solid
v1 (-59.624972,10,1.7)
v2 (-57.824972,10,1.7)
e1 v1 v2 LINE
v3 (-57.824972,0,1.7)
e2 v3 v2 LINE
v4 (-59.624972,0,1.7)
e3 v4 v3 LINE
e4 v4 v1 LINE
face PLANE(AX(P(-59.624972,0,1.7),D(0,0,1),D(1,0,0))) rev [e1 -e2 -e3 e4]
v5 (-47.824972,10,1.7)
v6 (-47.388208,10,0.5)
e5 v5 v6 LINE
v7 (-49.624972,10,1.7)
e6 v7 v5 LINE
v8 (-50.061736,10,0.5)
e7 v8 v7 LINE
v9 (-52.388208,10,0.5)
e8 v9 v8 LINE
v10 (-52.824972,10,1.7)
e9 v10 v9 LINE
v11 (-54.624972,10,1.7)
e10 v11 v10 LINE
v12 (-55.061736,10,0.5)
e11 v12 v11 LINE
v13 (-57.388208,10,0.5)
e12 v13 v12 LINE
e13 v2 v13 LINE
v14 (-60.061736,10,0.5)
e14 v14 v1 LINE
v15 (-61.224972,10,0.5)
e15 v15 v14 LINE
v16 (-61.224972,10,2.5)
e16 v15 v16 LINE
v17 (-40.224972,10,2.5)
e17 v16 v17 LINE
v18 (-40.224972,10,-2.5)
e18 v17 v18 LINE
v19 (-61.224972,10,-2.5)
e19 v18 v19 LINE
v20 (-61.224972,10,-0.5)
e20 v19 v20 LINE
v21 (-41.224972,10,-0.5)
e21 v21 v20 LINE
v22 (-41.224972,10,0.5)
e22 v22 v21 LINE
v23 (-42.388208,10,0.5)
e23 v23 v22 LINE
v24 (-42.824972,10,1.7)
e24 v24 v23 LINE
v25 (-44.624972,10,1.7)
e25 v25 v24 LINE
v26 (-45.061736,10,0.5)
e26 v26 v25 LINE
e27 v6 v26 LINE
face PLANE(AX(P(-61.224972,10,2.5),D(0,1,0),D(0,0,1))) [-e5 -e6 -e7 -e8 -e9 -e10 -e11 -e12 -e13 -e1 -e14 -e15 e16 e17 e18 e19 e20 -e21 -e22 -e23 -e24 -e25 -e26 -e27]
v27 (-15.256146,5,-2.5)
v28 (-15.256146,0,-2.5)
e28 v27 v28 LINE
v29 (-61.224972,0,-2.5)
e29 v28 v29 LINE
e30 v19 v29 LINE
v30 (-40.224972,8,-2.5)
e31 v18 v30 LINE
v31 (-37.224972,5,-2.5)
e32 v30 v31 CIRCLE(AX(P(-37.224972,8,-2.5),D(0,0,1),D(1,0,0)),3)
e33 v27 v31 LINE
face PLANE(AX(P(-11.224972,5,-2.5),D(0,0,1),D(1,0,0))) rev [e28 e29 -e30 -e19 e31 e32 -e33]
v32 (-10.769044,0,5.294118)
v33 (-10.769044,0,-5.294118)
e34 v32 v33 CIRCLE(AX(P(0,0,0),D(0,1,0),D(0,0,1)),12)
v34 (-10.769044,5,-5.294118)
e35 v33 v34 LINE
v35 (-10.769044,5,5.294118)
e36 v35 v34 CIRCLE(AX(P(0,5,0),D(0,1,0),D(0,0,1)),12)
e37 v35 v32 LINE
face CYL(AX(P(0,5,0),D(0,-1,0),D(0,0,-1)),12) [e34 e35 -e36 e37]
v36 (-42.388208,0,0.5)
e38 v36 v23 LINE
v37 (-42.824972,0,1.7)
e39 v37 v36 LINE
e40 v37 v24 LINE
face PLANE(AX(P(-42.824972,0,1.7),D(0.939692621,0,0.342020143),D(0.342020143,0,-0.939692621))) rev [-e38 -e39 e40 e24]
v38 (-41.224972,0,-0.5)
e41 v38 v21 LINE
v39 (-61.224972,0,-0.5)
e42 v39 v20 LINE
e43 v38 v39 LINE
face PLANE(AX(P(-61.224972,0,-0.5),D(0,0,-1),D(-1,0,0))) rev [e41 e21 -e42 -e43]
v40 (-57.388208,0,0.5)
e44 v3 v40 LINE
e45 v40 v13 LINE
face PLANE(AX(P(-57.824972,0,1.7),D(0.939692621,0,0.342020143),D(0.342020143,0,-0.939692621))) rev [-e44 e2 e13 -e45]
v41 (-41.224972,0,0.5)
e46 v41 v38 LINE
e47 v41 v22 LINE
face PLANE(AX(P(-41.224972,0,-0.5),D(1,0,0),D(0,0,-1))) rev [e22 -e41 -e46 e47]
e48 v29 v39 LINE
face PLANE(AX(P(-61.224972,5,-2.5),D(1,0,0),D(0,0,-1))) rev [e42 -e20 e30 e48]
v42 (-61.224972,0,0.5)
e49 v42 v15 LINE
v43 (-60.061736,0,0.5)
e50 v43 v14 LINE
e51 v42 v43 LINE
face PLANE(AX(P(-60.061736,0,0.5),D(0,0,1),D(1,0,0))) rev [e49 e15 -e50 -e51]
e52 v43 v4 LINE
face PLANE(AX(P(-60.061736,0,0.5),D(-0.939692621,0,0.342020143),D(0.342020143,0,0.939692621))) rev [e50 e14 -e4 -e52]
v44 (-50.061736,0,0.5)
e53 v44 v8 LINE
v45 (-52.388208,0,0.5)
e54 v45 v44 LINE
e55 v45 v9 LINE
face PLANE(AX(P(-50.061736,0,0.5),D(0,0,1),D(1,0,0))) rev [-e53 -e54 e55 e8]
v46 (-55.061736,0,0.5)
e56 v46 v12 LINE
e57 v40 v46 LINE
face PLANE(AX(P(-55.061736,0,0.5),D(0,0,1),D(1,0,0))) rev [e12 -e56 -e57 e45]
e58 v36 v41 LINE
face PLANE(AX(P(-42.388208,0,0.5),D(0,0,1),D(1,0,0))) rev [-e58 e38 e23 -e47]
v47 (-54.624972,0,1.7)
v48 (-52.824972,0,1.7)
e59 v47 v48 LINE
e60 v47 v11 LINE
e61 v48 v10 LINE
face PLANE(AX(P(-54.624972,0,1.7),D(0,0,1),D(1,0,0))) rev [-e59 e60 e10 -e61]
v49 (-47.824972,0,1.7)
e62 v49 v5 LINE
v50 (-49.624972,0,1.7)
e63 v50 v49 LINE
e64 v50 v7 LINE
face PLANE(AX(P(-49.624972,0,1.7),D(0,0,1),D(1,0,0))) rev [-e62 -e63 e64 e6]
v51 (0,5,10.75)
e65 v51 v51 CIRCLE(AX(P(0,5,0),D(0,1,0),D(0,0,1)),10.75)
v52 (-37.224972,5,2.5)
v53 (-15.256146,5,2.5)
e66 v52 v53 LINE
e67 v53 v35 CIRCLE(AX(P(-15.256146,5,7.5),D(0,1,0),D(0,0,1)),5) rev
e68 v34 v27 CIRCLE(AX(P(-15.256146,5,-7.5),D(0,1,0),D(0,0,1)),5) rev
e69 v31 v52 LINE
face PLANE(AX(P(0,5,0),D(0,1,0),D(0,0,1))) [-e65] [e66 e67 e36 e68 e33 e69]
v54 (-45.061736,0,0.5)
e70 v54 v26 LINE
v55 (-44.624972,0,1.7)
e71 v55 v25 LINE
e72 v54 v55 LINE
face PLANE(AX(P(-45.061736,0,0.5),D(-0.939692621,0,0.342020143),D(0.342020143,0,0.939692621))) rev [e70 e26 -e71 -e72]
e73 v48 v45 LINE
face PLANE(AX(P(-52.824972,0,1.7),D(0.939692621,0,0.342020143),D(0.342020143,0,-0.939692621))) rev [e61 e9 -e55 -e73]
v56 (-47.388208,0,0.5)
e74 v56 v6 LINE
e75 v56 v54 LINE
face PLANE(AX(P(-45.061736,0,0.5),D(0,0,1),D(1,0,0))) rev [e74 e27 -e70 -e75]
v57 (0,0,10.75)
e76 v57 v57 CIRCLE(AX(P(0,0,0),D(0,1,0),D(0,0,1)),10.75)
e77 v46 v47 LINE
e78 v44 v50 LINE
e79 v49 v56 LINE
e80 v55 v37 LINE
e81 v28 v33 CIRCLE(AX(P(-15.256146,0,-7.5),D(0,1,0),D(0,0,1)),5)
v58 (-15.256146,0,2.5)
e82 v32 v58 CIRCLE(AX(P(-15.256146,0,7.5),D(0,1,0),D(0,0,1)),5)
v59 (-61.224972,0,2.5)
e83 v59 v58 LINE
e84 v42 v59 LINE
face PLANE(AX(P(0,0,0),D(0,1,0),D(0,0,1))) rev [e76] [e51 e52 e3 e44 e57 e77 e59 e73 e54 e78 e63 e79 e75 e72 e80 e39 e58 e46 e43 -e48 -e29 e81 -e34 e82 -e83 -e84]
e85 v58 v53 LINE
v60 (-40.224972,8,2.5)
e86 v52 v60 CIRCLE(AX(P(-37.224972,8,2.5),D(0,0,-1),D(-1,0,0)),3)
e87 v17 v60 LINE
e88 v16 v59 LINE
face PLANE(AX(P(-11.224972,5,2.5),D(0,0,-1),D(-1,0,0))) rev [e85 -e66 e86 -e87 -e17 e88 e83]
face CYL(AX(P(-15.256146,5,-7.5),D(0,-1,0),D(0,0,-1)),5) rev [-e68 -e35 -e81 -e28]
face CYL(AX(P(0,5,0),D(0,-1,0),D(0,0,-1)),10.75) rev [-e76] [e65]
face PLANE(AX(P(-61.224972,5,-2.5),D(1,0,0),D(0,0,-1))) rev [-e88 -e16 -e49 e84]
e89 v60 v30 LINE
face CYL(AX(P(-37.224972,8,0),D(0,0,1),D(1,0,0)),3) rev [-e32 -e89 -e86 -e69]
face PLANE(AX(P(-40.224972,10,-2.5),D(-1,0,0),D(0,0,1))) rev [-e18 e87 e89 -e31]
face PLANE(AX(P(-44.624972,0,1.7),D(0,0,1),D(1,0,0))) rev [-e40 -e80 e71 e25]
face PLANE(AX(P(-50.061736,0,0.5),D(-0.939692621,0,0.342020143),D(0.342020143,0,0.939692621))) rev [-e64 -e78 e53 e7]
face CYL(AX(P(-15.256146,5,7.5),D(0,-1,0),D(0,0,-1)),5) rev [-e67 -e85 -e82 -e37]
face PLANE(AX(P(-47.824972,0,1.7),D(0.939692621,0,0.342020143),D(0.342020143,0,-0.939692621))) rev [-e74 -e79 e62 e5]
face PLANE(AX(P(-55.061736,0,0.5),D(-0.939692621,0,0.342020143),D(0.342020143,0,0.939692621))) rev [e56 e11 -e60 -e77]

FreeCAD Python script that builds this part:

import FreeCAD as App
import Part
import Sketcher
from FreeCAD import Vector
Q = App.Units.Quantity


def edges_at(feature, points):
    """Names of the edges that pass closest to the given points."""
    edges = feature.Shape.Edges
    near = lambda p: min(range(len(edges)), key=lambda i: edges[i].distToShape(Part.Vertex(*p))[0])
    return sorted({f"Edge{near(p) + 1}" for p in points})

doc = App.newDocument("Part")
body = doc.addObject("PartDesign::Body", "Body")

# Sketch on XZ plane
sketch1 = doc.addObject("Sketcher::SketchObject", "Sketch")
body.addObject(sketch1)
sketch1.AttachmentSupport = (doc.XZ_Plane, [""])
sketch1.MapMode = "FlatFace"
sketch1.addGeometry([
    Part.Circle(Vector(0, 0, 0), Vector(0, 0, 1), 12),
    Part.Circle(Vector(0, 0, 0), Vector(0, 0, 1), 11),
], False)
sketch1.addConstraint([
    Sketcher.Constraint("Coincident", 0, 3, -1, 1),
    Sketcher.Constraint("Coincident", 1, 3, -1, 1),
    Sketcher.Constraint("Diameter", 0, 24.0),
    Sketcher.Constraint("Diameter", 1, 21.5),
])
pad1 = doc.addObject("PartDesign::Pad", "Pad")
body.addObject(pad1)
pad1.Profile = sketch1
pad1.Length = 5
pad1.Reversed = True

# Sketch on XZ plane
sketch2 = doc.addObject("Sketcher::SketchObject", "Sketch001")
body.addObject(sketch2)
sketch2.AttachmentSupport = (doc.XZ_Plane, [""])
sketch2.MapMode = "FlatFace"
sketch2.addGeometry([
    Part.LineSegment(Vector(-61, -2, 0), Vector(-61, 2, 0)),
    Part.LineSegment(Vector(-61, 2, 0), Vector(-11, 2, 0)),
    Part.LineSegment(Vector(-11, 2, 0), Vector(-11, -2, 0)),
    Part.LineSegment(Vector(-11, -2, 0), Vector(-61, -2, 0)),
], False)
sketch2.addConstraint([
    Sketcher.Constraint("Coincident", 0, 2, 1, 1),
    Sketcher.Constraint("Coincident", 1, 2, 2, 1),
    Sketcher.Constraint("Coincident", 2, 2, 3, 1),
    Sketcher.Constraint("Coincident", 3, 2, 0, 1),
    Sketcher.Constraint("Vertical", 0),
    Sketcher.Constraint("Horizontal", 1),
    Sketcher.Constraint("Vertical", 2),
    Sketcher.Constraint("Horizontal", 3),
    Sketcher.Constraint("DistanceX", 1, 1, 1, 2, 50.0),
    Sketcher.Constraint("DistanceY", 0, 1, 0, 2, 5.0),
    Sketcher.Constraint("DistanceY", -1, 1, 0, 2, 2.5),
    Sketcher.Constraint("DistanceX", 0, 2, -1, 1, 61.224972),
])
pad2 = doc.addObject("PartDesign::Pad", "Pad001")
body.addObject(pad2)
pad2.Profile = sketch2
pad2.Length = 5
pad2.Reversed = True

# Sketch on XZ plane
sketch3 = doc.addObject("Sketcher::SketchObject", "Sketch002")
body.addObject(sketch3)
sketch3.AttachmentSupport = (doc.XZ_Plane, [""])
sketch3.MapMode = "FlatFace"
sketch3.addGeometry([
    Part.LineSegment(Vector(-61, -2, 0), Vector(-61, 2, 0)),
    Part.LineSegment(Vector(-61, 2, 0), Vector(-40, 2, 0)),
    Part.LineSegment(Vector(-40, 2, 0), Vector(-40, -2, 0)),
    Part.LineSegment(Vector(-40, -2, 0), Vector(-61, -2, 0)),
], False)
sketch3.addConstraint([
    Sketcher.Constraint("Coincident", 0, 2, 1, 1),
    Sketcher.Constraint("Coincident", 1, 2, 2, 1),
    Sketcher.Constraint("Coincident", 2, 2, 3, 1),
    Sketcher.Constraint("Coincident", 3, 2, 0, 1),
    Sketcher.Constraint("Vertical", 0),
    Sketcher.Constraint("Horizontal", 1),
    Sketcher.Constraint("Vertical", 2),
    Sketcher.Constraint("Horizontal", 3),
    Sketcher.Constraint("DistanceX", 1, 1, 1, 2, 21.0),
    Sketcher.Constraint("DistanceY", 0, 1, 0, 2, 5.0),
    Sketcher.Constraint("DistanceY", -1, 1, 0, 2, 2.5),
    Sketcher.Constraint("DistanceX", 0, 2, -1, 1, 61.224972),
])
pad3 = doc.addObject("PartDesign::Pad", "Pad002")
body.addObject(pad3)
pad3.Profile = sketch3
pad3.Length = 10
pad3.Reversed = True
doc.recompute()

fillet = doc.addObject("PartDesign::Fillet", "Fillet")
body.addObject(fillet)
fillet.Base = (pad3, edges_at(pad3, [(-11.737, 2.5, 2.5), (-11.737, 2.5, -2.5)]))
fillet.Radius = 5
doc.recompute()

fillet2 = doc.addObject("PartDesign::Fillet", "Fillet001")
body.addObject(fillet2)
fillet2.Base = (fillet, edges_at(fillet, [(-40.225, 5, 0)]))
fillet2.Radius = 3

# Sketch on XZ plane
sketch4 = doc.addObject("Sketcher::SketchObject", "Sketch003")
body.addObject(sketch4)
sketch4.AttachmentSupport = (doc.XZ_Plane, [""])
sketch4.MapMode = "FlatFace"
sketch4.AttachmentOffset = App.Placement(Vector(0, 0, -2.5), App.Rotation())
sketch4.addGeometry([
    Part.LineSegment(Vector(-41.2, -0.5, 0), Vector(-61.2, -0.5, 0)),  # 0
    Part.LineSegment(Vector(-61.2, -0.5, 0), Vector(-61.2, 0.5, 0)),  # 1
    Part.LineSegment(Vector(-61.2, 0.5, 0), Vector(-60.1, 0.5, 0)),  # 2
    Part.LineSegment(Vector(-60.1, 0.5, 0), Vector(-59.6, 1.7, 0)),  # 3
    Part.LineSegment(Vector(-59.6, 1.7, 0), Vector(-57.8, 1.7, 0)),  # 4
    Part.LineSegment(Vector(-57.8, 1.7, 0), Vector(-57.4, 0.5, 0)),  # 5
    Part.LineSegment(Vector(-57.4, 0.5, 0), Vector(-55.1, 0.5, 0)),  # 6
    Part.LineSegment(Vector(-55.1, 0.5, 0), Vector(-54.6, 1.7, 0)),  # 7
    Part.LineSegment(Vector(-54.6, 1.7, 0), Vector(-52.8, 1.7, 0)),  # 8
    Part.LineSegment(Vector(-52.8, 1.7, 0), Vector(-52.4, 0.5, 0)),  # 9
    Part.LineSegment(Vector(-52.4, 0.5, 0), Vector(-50.1, 0.5, 0)),  # 10
    Part.LineSegment(Vector(-50.1, 0.5, 0), Vector(-49.6, 1.7, 0)),  # 11
    Part.LineSegment(Vector(-49.6, 1.7, 0), Vector(-47.8, 1.7, 0)),  # 12
    Part.LineSegment(Vector(-47.8, 1.7, 0), Vector(-47.4, 0.5, 0)),  # 13
    Part.LineSegment(Vector(-47.4, 0.5, 0), Vector(-45.1, 0.5, 0)),  # 14
    Part.LineSegment(Vector(-45.1, 0.5, 0), Vector(-44.6, 1.7, 0)),  # 15
    Part.LineSegment(Vector(-44.6, 1.7, 0), Vector(-42.8, 1.7, 0)),  # 16
    Part.LineSegment(Vector(-42.8, 1.7, 0), Vector(-42.4, 0.5, 0)),  # 17
    Part.LineSegment(Vector(-42.4, 0.5, 0), Vector(-41.2, 0.5, 0)),  # 18
    Part.LineSegment(Vector(-41.2, 0.5, 0), Vector(-41.2, -0.5, 0)),  # 19
], False)
sketch4.addConstraint([
    Sketcher.Constraint("Coincident", 0, 2, 1, 1),
    Sketcher.Constraint("Coincident", 1, 2, 2, 1),
    Sketcher.Constraint("Coincident", 2, 2, 3, 1),
    Sketcher.Constraint("Coincident", 3, 2, 4, 1),
    Sketcher.Constraint("Coincident", 4, 2, 5, 1),
    Sketcher.Constraint("Coincident", 5, 2, 6, 1),
    Sketcher.Constraint("Coincident", 6, 2, 7, 1),
    Sketcher.Constraint("Coincident", 7, 2, 8, 1),
    Sketcher.Constraint("Coincident", 8, 2, 9, 1),
    Sketcher.Constraint("Coincident", 9, 2, 10, 1),
    Sketcher.Constraint("Coincident", 10, 2, 11, 1),
    Sketcher.Constraint("Coincident", 11, 2, 12, 1),
    Sketcher.Constraint("Coincident", 12, 2, 13, 1),
    Sketcher.Constraint("Coincident", 13, 2, 14, 1),
    Sketcher.Constraint("Coincident", 14, 2, 15, 1),
    Sketcher.Constraint("Coincident", 15, 2, 16, 1),
    Sketcher.Constraint("Coincident", 16, 2, 17, 1),
    Sketcher.Constraint("Coincident", 17, 2, 18, 1),
    Sketcher.Constraint("Coincident", 18, 2, 19, 1),
    Sketcher.Constraint("Coincident", 19, 2, 0, 1),
    Sketcher.Constraint("Horizontal", 0),
    Sketcher.Constraint("Vertical", 1),
    Sketcher.Constraint("Horizontal", 2),
    Sketcher.Constraint("Horizontal", 4),
    Sketcher.Constraint("Horizontal", 6),
    Sketcher.Constraint("Horizontal", 8),
    Sketcher.Constraint("Horizontal", 10),
    Sketcher.Constraint("Horizontal", 12),
    Sketcher.Constraint("Horizontal", 14),
    Sketcher.Constraint("Horizontal", 16),
    Sketcher.Constraint("Horizontal", 18),
    Sketcher.Constraint("Vertical", 19),
    Sketcher.Constraint("Parallel", 3, 7),
    Sketcher.Constraint("Parallel", 5, 9),
    Sketcher.Constraint("Parallel", 7, 11),
    Sketcher.Constraint("Parallel", 9, 13),
    Sketcher.Constraint("Parallel", 11, 15),
    Sketcher.Constraint("Parallel", 13, 17),
    Sketcher.Constraint("Horizontal", 2, 2, 5, 2),
    Sketcher.Constraint("Horizontal", 4, 2, 7, 2),
    Sketcher.Constraint("Horizontal", 6, 2, 9, 2),
    Sketcher.Constraint("Horizontal", 8, 2, 11, 2),
    Sketcher.Constraint("Horizontal", 10, 2, 13, 2),
    Sketcher.Constraint("Horizontal", 12, 2, 15, 2),
    Sketcher.Constraint("Horizontal", 14, 2, 17, 2),
    Sketcher.Constraint("Equal", 4, 8),
    Sketcher.Constraint("Equal", 6, 10),
    Sketcher.Constraint("Equal", 8, 12),
    Sketcher.Constraint("Equal", 10, 14),
    Sketcher.Constraint("Equal", 12, 16),
    Sketcher.Constraint("Equal", 2, 18),
    Sketcher.Constraint("Equal", 3, 5),
    Sketcher.Constraint("DistanceX", 0, 2, 0, 1, 20.0),
    Sketcher.Constraint("DistanceY", 1, 1, 1, 2, 1.0),
    Sketcher.Constraint("Angle", 3, Q("70 deg")),
    Sketcher.Constraint("DistanceX", 4, 1, 4, 2, 1.8),
    Sketcher.Constraint("DistanceX", 2, 2, 6, 2, 5.0),
    Sketcher.Constraint("DistanceY", 0, 2, -1, 1, 0.5),
    Sketcher.Constraint("DistanceY", -1, 1, 3, 2, 1.7),
    Sketcher.Constraint("DistanceX", 0, 2, -1, 1, 61.224972),
])
pocket1 = doc.addObject("PartDesign::Pocket", "Pocket")
body.addObject(pocket1)
pocket1.Profile = sketch4
pocket1.Type = "ThroughAll"
pocket1.Midplane = True

doc.recompute()
